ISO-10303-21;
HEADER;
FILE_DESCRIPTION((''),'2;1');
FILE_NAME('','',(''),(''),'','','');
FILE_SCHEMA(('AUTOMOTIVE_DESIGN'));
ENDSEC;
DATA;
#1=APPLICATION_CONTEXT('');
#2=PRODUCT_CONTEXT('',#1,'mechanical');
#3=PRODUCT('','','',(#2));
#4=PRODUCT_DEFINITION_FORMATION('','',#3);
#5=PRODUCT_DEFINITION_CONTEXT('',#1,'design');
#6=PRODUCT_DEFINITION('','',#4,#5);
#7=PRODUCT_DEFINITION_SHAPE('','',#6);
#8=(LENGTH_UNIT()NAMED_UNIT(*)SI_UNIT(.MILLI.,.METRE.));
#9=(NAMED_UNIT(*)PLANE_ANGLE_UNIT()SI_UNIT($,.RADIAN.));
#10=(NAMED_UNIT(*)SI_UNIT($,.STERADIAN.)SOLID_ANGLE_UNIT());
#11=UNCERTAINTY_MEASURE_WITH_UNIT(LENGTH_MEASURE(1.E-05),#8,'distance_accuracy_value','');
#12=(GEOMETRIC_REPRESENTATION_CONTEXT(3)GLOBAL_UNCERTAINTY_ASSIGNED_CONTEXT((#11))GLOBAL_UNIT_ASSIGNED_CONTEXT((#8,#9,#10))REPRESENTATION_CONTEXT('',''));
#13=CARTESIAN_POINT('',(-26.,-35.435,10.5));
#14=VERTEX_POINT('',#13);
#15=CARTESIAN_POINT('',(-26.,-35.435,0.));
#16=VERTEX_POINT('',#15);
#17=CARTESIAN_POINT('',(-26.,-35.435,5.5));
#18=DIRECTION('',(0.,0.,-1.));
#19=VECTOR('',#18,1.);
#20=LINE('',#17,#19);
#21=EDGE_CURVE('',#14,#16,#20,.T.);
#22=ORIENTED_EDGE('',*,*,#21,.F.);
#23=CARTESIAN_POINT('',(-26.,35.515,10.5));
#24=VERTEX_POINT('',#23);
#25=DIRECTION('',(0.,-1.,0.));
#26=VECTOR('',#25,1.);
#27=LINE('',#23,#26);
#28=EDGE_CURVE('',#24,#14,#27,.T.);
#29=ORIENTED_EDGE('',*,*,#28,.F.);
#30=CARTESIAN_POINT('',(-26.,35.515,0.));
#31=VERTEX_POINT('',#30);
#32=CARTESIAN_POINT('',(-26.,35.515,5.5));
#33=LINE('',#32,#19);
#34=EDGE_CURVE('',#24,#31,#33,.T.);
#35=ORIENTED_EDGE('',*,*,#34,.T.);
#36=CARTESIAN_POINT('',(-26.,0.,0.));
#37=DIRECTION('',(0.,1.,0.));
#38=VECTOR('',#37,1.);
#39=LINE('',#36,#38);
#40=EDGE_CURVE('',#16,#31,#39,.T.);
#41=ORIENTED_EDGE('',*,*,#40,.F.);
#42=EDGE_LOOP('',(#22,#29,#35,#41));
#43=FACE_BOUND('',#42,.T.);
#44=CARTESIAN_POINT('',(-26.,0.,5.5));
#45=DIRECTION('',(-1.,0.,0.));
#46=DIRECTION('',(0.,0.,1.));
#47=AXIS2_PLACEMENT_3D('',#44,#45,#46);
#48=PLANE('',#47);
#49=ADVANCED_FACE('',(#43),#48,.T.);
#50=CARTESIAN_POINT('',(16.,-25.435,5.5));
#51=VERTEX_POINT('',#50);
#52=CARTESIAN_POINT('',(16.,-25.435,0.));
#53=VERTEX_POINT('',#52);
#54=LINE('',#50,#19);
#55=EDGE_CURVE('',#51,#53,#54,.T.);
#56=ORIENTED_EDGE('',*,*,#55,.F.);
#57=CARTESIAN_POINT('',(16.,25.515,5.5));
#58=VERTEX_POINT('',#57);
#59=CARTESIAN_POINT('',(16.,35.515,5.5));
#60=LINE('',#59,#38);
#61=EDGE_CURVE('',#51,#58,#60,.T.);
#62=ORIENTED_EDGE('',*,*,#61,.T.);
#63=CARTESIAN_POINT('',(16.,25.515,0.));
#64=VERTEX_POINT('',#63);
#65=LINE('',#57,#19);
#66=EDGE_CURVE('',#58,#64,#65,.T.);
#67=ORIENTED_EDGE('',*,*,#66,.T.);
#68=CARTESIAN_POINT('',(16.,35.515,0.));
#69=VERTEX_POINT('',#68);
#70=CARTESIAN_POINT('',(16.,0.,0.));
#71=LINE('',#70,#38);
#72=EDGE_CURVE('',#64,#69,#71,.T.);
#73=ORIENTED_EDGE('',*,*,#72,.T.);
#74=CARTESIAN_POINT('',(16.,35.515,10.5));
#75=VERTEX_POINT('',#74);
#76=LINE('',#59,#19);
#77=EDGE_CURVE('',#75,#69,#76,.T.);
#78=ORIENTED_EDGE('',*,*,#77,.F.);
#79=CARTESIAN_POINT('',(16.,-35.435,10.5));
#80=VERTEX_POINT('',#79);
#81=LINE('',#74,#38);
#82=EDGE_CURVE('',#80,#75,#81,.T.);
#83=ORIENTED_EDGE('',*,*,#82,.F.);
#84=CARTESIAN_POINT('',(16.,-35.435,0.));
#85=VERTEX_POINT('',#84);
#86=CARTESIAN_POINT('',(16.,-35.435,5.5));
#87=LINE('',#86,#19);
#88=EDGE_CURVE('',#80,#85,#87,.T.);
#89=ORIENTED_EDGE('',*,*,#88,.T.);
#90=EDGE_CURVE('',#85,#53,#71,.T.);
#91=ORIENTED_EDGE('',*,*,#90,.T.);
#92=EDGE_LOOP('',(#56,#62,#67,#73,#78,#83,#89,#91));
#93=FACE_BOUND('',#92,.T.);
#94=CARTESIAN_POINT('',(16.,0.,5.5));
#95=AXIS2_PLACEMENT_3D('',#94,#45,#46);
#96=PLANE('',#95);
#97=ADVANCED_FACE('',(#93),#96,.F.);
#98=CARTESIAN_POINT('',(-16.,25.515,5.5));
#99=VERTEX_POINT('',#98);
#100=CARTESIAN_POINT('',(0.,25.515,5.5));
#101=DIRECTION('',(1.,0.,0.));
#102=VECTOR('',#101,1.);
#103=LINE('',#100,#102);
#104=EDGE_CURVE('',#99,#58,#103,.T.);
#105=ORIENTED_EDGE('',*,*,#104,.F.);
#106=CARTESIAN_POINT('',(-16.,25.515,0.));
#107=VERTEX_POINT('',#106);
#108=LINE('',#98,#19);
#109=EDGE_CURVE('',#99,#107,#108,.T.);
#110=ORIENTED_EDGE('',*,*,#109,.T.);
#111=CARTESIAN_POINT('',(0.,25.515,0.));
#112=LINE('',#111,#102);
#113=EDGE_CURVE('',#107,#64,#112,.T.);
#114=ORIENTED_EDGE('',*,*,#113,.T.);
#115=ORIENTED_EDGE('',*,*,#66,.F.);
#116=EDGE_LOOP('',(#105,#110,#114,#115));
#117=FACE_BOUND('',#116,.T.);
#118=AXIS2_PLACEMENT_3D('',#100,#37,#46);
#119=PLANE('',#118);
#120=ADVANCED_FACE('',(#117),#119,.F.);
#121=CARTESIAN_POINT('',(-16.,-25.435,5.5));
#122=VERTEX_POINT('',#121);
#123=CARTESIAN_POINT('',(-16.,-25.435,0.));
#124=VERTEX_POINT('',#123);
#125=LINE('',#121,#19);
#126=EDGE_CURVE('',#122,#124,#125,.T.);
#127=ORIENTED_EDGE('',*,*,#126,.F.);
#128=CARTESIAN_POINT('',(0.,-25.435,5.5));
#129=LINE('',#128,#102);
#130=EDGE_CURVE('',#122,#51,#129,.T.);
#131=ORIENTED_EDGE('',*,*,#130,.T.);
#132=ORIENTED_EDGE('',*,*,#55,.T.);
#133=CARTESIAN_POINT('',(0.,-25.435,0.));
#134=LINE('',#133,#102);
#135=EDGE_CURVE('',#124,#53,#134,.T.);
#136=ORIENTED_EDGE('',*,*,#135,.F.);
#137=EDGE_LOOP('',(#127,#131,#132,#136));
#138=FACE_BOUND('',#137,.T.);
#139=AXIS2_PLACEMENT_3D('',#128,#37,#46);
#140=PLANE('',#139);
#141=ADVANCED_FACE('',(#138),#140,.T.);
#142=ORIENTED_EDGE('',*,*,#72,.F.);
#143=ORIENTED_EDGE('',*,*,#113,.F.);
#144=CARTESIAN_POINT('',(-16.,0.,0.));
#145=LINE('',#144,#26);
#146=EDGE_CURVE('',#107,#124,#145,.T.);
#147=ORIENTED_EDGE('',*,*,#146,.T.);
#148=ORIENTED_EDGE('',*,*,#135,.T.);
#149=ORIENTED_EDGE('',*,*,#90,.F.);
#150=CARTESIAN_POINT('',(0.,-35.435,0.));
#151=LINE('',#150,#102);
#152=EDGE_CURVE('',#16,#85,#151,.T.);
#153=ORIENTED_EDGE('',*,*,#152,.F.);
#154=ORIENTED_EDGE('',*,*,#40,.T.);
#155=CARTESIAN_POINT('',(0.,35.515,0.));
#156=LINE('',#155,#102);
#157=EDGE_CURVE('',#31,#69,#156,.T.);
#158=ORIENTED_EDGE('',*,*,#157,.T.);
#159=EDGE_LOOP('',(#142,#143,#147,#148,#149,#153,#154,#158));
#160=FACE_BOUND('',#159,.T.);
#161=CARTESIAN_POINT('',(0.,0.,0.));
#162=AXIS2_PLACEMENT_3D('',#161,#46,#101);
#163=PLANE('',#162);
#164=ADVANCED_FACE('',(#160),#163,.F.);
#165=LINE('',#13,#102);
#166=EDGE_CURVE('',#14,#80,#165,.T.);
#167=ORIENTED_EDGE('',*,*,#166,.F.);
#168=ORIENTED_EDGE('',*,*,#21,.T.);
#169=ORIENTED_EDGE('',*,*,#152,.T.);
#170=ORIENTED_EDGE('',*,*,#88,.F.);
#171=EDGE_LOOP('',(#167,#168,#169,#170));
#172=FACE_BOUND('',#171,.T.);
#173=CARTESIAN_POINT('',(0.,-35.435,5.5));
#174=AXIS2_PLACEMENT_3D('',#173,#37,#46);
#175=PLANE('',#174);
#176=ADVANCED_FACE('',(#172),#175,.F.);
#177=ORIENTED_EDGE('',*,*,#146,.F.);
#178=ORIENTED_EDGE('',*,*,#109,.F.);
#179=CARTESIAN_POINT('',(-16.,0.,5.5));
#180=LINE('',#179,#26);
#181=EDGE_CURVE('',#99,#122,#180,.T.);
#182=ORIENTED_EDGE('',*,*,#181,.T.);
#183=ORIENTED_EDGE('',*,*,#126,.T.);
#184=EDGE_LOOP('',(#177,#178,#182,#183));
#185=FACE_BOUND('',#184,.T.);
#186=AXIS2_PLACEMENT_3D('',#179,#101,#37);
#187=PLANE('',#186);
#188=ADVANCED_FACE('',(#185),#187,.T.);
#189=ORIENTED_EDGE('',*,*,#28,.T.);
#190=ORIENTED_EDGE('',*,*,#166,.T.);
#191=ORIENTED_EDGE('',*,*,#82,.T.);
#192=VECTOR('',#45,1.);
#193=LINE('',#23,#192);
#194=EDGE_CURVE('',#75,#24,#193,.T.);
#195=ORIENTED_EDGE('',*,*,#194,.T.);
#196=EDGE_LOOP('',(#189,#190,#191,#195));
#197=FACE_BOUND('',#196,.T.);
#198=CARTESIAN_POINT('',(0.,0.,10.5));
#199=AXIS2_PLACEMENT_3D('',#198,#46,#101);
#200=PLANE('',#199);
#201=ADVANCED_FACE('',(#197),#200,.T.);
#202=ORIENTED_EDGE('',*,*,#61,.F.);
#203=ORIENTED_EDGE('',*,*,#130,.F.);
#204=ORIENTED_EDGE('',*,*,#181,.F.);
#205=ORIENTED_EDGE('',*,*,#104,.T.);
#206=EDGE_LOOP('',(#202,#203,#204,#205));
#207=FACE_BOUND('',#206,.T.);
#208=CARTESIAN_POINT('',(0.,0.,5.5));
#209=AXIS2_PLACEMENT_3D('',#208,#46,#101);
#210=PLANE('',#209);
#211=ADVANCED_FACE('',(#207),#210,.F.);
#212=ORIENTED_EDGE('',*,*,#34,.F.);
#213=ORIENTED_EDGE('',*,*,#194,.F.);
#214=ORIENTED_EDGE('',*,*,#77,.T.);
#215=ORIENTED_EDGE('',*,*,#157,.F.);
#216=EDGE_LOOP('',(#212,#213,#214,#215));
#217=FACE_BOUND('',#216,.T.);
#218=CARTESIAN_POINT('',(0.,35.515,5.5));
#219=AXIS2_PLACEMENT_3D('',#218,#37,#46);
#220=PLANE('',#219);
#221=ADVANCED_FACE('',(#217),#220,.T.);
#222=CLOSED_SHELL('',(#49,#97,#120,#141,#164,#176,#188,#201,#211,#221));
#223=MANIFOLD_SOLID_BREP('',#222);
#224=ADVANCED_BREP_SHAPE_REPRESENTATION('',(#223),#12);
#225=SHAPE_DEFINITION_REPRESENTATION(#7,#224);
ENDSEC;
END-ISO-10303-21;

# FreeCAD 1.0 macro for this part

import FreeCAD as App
import Part
import Sketcher
from FreeCAD import Vector
Q = App.Units.Quantity

doc = App.newDocument("Part")
body = doc.addObject("PartDesign::Body", "Body")

sketch1 = body.newObject("Sketcher::SketchObject", "Sketch")
sketch1.AttachmentSupport = (doc.getObject("XY_Plane"), [""])
sketch1.MapMode = "FlatFace"
sketch1.addGeometry(Part.LineSegment(Vector(-16, -25, 0), Vector(-16, 26, 0)), False)
sketch1.addGeometry(Part.LineSegment(Vector(-16, 26, 0), Vector(16, 26, 0)), False)
sketch1.addGeometry(Part.LineSegment(Vector(16, 26, 0), Vector(16, 36, 0)), False)
sketch1.addGeometry(Part.LineSegment(Vector(16, 36, 0), Vector(-26, 36, 0)), False)
sketch1.addGeometry(Part.LineSegment(Vector(-26, 36, 0), Vector(-26, -35, 0)), False)
sketch1.addGeometry(Part.LineSegment(Vector(-26, -35, 0), Vector(16, -35, 0)), False)
sketch1.addGeometry(Part.LineSegment(Vector(16, -35, 0), Vector(16, -25, 0)), False)
sketch1.addGeometry(Part.LineSegment(Vector(16, -25, 0), Vector(-16, -25, 0)), False)
sketch1.addConstraint(Sketcher.Constraint("Coincident", 0, 2, 1, 1))
sketch1.addConstraint(Sketcher.Constraint("Coincident", 1, 2, 2, 1))
sketch1.addConstraint(Sketcher.Constraint("Coincident", 2, 2, 3, 1))
sketch1.addConstraint(Sketcher.Constraint("Coincident", 3, 2, 4, 1))
sketch1.addConstraint(Sketcher.Constraint("Coincident", 4, 2, 5, 1))
sketch1.addConstraint(Sketcher.Constraint("Coincident", 5, 2, 6, 1))
sketch1.addConstraint(Sketcher.Constraint("Coincident", 6, 2, 7, 1))
sketch1.addConstraint(Sketcher.Constraint("Coincident", 7, 2, 0, 1))
sketch1.addConstraint(Sketcher.Constraint("Vertical", 0))
sketch1.addConstraint(Sketcher.Constraint("Horizontal", 1))
sketch1.addConstraint(Sketcher.Constraint("Vertical", 2))
sketch1.addConstraint(Sketcher.Constraint("Horizontal", 3))
sketch1.addConstraint(Sketcher.Constraint("Vertical", 4))
sketch1.addConstraint(Sketcher.Constraint("Horizontal", 5))
sketch1.addConstraint(Sketcher.Constraint("Vertical", 6))
sketch1.addConstraint(Sketcher.Constraint("Horizontal", 7))
sketch1.addConstraint(Sketcher.Constraint("Vertical", 2, 2, 5, 2))
sketch1.addConstraint(Sketcher.Constraint("Equal", 2, 6))
sketch1.addConstraint(Sketcher.Constraint("DistanceX", 1, 1, 1, 2, Q("32 mm")))
sketch1.addConstraint(Sketcher.Constraint("DistanceX", 3, 2, 3, 1, Q("42 mm")))
sketch1.addConstraint(Sketcher.Constraint("DistanceY", 2, 1, 2, 2, Q("10 mm")))
sketch1.addConstraint(Sketcher.Constraint("DistanceX", 0, 2, -1, 1, Q("16 mm")))
sketch1.addConstraint(Sketcher.Constraint("DistanceY", 0, 1, 0, 2, Q("50.95 mm")))
sketch1.addConstraint(Sketcher.Constraint("DistanceY", -1, 1, 0, 2, Q("25.515 mm")))
pad1 = body.newObject("PartDesign::Pad", "Pad")
pad1.Profile = sketch1
pad1.Length = 5.5

sketch2 = body.newObject("Sketcher::SketchObject", "Sketch001")
sketch2.AttachmentSupport = (doc.getObject("XY_Plane"), [""])
sketch2.MapMode = "FlatFace"
sketch2.AttachmentOffset = App.Placement(Vector(0, 0, 5.5), App.Rotation())
sketch2.addGeometry(Part.LineSegment(Vector(-26, 36, 0), Vector(-26, -35, 0)), False)
sketch2.addGeometry(Part.LineSegment(Vector(-26, -35, 0), Vector(16, -35, 0)), False)
sketch2.addGeometry(Part.LineSegment(Vector(16, -35, 0), Vector(16, 36, 0)), False)
sketch2.addGeometry(Part.LineSegment(Vector(16, 36, 0), Vector(-26, 36, 0)), False)
sketch2.addConstraint(Sketcher.Constraint("Coincident", 0, 2, 1, 1))
sketch2.addConstraint(Sketcher.Constraint("Coincident", 1, 2, 2, 1))
sketch2.addConstraint(Sketcher.Constraint("Coincident", 2, 2, 3, 1))
sketch2.addConstraint(Sketcher.Constraint("Coincident", 3, 2, 0, 1))
sketch2.addConstraint(Sketcher.Constraint("Vertical", 0))
sketch2.addConstraint(Sketcher.Constraint("Horizontal", 1))
sketch2.addConstraint(Sketcher.Constraint("Vertical", 2))
sketch2.addConstraint(Sketcher.Constraint("Horizontal", 3))
sketch2.addConstraint(Sketcher.Constraint("DistanceX", 1, 1, 1, 2, Q("42 mm")))
sketch2.addConstraint(Sketcher.Constraint("DistanceX", 0, 2, -1, 1, Q("26 mm")))
sketch2.addConstraint(Sketcher.Constraint("DistanceY", 0, 2, 0, 1, Q("70.95 mm")))
sketch2.addConstraint(Sketcher.Constraint("DistanceY", 0, 2, -1, 1, Q("35.435 mm")))
pad2 = body.newObject("PartDesign::Pad", "Pad001")
pad2.Profile = sketch2
pad2.Length = 5

doc.recompute()
